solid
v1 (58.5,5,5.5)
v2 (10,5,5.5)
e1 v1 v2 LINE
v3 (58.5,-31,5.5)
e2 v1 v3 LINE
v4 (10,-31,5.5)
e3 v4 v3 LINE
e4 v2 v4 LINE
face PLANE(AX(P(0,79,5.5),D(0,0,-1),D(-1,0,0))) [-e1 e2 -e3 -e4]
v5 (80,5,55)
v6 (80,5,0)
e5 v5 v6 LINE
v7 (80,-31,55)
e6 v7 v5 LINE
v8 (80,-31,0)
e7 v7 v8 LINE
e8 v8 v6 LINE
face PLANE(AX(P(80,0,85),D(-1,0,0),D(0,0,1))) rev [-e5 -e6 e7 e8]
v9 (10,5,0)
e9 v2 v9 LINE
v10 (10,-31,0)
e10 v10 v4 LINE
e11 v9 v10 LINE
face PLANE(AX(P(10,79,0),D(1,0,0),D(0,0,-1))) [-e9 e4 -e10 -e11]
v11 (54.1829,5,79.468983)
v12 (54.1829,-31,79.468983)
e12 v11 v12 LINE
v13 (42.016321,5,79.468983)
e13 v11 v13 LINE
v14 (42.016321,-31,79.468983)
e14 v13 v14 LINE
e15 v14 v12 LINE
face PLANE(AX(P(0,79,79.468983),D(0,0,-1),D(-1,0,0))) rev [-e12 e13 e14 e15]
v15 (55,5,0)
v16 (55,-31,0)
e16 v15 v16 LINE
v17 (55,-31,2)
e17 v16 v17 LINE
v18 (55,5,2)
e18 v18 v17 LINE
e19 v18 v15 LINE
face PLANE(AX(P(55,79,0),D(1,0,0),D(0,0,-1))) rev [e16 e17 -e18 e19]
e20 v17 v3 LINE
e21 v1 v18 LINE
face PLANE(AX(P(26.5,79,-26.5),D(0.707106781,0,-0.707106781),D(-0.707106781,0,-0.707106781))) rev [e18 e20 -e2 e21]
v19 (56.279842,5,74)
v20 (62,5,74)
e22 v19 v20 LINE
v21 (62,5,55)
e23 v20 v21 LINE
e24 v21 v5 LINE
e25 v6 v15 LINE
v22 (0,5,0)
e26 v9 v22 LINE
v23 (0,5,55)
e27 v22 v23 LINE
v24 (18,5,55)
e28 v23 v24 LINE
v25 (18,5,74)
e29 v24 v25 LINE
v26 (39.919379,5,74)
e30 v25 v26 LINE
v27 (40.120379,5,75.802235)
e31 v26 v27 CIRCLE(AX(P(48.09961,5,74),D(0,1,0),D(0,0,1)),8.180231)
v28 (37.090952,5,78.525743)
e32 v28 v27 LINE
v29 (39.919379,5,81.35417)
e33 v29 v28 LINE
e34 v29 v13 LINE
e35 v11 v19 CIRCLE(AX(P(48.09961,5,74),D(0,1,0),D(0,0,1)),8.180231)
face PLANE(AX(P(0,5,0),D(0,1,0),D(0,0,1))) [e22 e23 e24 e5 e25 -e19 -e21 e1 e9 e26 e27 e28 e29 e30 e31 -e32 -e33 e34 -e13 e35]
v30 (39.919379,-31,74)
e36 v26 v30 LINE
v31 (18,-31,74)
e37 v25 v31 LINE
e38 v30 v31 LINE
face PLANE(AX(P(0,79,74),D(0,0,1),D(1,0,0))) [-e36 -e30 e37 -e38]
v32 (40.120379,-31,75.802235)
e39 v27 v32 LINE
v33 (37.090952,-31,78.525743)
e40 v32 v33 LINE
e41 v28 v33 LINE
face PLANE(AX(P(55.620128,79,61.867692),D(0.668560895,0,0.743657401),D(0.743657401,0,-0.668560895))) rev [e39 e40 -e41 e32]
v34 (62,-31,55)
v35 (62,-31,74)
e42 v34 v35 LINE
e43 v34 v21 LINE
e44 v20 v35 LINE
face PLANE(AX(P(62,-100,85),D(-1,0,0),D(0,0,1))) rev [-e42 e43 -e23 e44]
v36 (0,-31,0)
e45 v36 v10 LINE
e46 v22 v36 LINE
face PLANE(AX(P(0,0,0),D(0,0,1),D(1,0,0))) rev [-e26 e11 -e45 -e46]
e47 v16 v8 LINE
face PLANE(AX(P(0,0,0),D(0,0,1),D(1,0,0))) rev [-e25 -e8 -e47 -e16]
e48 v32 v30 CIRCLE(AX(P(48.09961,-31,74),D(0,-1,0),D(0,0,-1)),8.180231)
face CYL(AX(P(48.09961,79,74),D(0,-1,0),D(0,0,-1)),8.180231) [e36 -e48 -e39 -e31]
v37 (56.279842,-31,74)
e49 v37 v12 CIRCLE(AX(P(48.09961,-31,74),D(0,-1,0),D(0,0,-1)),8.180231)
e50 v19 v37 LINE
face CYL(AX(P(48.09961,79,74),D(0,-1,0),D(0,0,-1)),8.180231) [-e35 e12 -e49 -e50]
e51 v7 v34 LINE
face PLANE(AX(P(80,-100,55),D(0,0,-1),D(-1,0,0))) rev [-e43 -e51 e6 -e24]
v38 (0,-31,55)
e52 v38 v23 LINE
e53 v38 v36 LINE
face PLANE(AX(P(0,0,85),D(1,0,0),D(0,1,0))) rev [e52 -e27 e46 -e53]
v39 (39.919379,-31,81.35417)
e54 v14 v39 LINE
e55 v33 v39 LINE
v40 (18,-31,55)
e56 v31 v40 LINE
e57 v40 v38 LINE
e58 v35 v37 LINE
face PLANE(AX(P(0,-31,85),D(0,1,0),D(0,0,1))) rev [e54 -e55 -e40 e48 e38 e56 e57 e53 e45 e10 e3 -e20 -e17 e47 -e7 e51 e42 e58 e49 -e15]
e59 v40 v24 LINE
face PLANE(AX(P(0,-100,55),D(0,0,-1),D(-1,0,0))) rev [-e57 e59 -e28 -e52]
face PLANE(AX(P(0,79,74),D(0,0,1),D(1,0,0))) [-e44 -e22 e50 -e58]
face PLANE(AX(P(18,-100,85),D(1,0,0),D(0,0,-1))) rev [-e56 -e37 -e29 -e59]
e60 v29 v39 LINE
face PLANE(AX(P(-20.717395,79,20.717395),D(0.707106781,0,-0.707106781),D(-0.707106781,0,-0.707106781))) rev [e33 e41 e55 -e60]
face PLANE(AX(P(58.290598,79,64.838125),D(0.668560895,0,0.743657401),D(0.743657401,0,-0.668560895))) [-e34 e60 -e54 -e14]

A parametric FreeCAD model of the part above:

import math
import FreeCAD as App
import Part
import Sketcher
Q = App.Units.Quantity

doc = App.newDocument("Part")
body = doc.addObject("PartDesign::Body", "Body")

# Sketch on XY plane
sketch1 = body.newObject("Sketcher::SketchObject", "Sketch")
sketch1.AttachmentSupport = (doc.getObject("XY_Plane"), [""])
sketch1.MapMode = "FlatFace"
sketch1.addGeometry([
    Part.LineSegment(App.Vector(0, 0, 0), App.Vector(0, -31, 0)),
    Part.LineSegment(App.Vector(0, -31, 0), App.Vector(80, -31, 0)),
    Part.LineSegment(App.Vector(80, -31, 0), App.Vector(80, 0, 0)),
    Part.LineSegment(App.Vector(80, 0, 0), App.Vector(0, 0, 0)),
], False)
sketch1.addConstraint([
    Sketcher.Constraint("Coincident", 0, 2, 1, 1),
    Sketcher.Constraint("Coincident", 1, 2, 2, 1),
    Sketcher.Constraint("Coincident", 2, 2, 3, 1),
    Sketcher.Constraint("Coincident", 3, 2, 0, 1),
    Sketcher.Constraint("Vertical", 0),
    Sketcher.Constraint("Horizontal", 1),
    Sketcher.Constraint("Vertical", 2),
    Sketcher.Constraint("Horizontal", 3),
    Sketcher.Constraint("Coincident", 3, 2, -1, 1),
    Sketcher.Constraint("DistanceX", 1, 1, 1, 2, Q("80 mm")),
    Sketcher.Constraint("DistanceY", 0, 2, 0, 1, Q("31 mm")),
])
pad1 = body.newObject("PartDesign::Pad", "Pad")
pad1.Profile = sketch1
pad1.Length = 85

# Sketch on XZ plane
sketch2 = body.newObject("Sketcher::SketchObject", "Sketch001")
sketch2.AttachmentSupport = (doc.getObject("XZ_Plane"), [""])
sketch2.MapMode = "FlatFace"
sketch2.addGeometry([
    Part.LineSegment(App.Vector(62, 55, 0), App.Vector(62, 85, 0)),  # 0
    Part.LineSegment(App.Vector(62, 85, 0), App.Vector(80, 85, 0)),  # 1
    Part.LineSegment(App.Vector(80, 85, 0), App.Vector(80, 55, 0)),  # 2
    Part.LineSegment(App.Vector(80, 55, 0), App.Vector(62, 55, 0)),  # 3
    Part.LineSegment(App.Vector(0, 55, 0), App.Vector(0, 85, 0)),  # 4
    Part.LineSegment(App.Vector(0, 85, 0), App.Vector(18, 85, 0)),  # 5
    Part.LineSegment(App.Vector(18, 85, 0), App.Vector(18, 55, 0)),  # 6
    Part.LineSegment(App.Vector(18, 55, 0), App.Vector(0, 55, 0)),  # 7
], False)
sketch2.addConstraint([
    Sketcher.Constraint("Coincident", 0, 2, 1, 1),
    Sketcher.Constraint("Coincident", 1, 2, 2, 1),
    Sketcher.Constraint("Coincident", 2, 2, 3, 1),
    Sketcher.Constraint("Coincident", 3, 2, 0, 1),
    Sketcher.Constraint("Coincident", 4, 2, 5, 1),
    Sketcher.Constraint("Coincident", 5, 2, 6, 1),
    Sketcher.Constraint("Coincident", 6, 2, 7, 1),
    Sketcher.Constraint("Coincident", 7, 2, 4, 1),
    Sketcher.Constraint("Vertical", 0),
    Sketcher.Constraint("Horizontal", 1),
    Sketcher.Constraint("Vertical", 2),
    Sketcher.Constraint("Horizontal", 3),
    Sketcher.Constraint("Vertical", 4),
    Sketcher.Constraint("Horizontal", 5),
    Sketcher.Constraint("Vertical", 6),
    Sketcher.Constraint("Horizontal", 7),
    Sketcher.Constraint("PointOnObject", 4, 2, -2),
    Sketcher.Constraint("Horizontal", 1, 2, 4, 2),
    Sketcher.Constraint("Horizontal", 3, 2, 6, 2),
    Sketcher.Constraint("Equal", 3, 5),
    Sketcher.Constraint("DistanceX", 1, 1, 1, 2, Q("18 mm")),
    Sketcher.Constraint("DistanceY", 0, 1, 0, 2, Q("30 mm")),
    Sketcher.Constraint("DistanceX", -1, 1, 0, 2, Q("62 mm")),
    Sketcher.Constraint("DistanceY", -1, 1, 0, 2, Q("85 mm")),
])
pocket1 = body.newObject("PartDesign::Pocket", "Pocket")
pocket1.Profile = sketch2
pocket1.Length = 100
pocket1.Reversed = True

# Sketch on XZ plane
sketch3 = body.newObject("Sketcher::SketchObject", "Sketch002")
sketch3.AttachmentSupport = (doc.getObject("XZ_Plane"), [""])
sketch3.MapMode = "FlatFace"
sketch3.addGeometry([
    Part.LineSegment(App.Vector(80, 55, 0), App.Vector(80, 0, 0)),  # 0
    Part.LineSegment(App.Vector(80, 0, 0), App.Vector(0, 0, 0)),  # 1
    Part.LineSegment(App.Vector(0, 0, 0), App.Vector(0, 55, 0)),  # 2
    Part.LineSegment(App.Vector(0, 55, 0), App.Vector(18, 55, 0)),  # 3
    Part.LineSegment(App.Vector(18, 55, 0), App.Vector(18, 85, 0)),  # 4
    Part.LineSegment(App.Vector(18, 85, 0), App.Vector(62, 85, 0)),  # 5
    Part.LineSegment(App.Vector(62, 85, 0), App.Vector(62, 55, 0)),  # 6
    Part.LineSegment(App.Vector(62, 55, 0), App.Vector(80, 55, 0)),  # 7
], False)
sketch3.addConstraint([
    Sketcher.Constraint("Coincident", 0, 2, 1, 1),
    Sketcher.Constraint("Coincident", 1, 2, 2, 1),
    Sketcher.Constraint("Coincident", 2, 2, 3, 1),
    Sketcher.Constraint("Coincident", 3, 2, 4, 1),
    Sketcher.Constraint("Coincident", 4, 2, 5, 1),
    Sketcher.Constraint("Coincident", 5, 2, 6, 1),
    Sketcher.Constraint("Coincident", 6, 2, 7, 1),
    Sketcher.Constraint("Coincident", 7, 2, 0, 1),
    Sketcher.Constraint("Vertical", 0),
    Sketcher.Constraint("Horizontal", 1),
    Sketcher.Constraint("Vertical", 2),
    Sketcher.Constraint("Horizontal", 3),
    Sketcher.Constraint("Vertical", 4),
    Sketcher.Constraint("Horizontal", 5),
    Sketcher.Constraint("Vertical", 6),
    Sketcher.Constraint("Horizontal", 7),
    Sketcher.Constraint("Coincident", 1, 2, -1, 1),
    Sketcher.Constraint("Horizontal", 3, 2, 6, 2),
    Sketcher.Constraint("Equal", 3, 7),
    Sketcher.Constraint("DistanceX", 1, 2, 1, 1, Q("80 mm")),
    Sketcher.Constraint("DistanceX", 3, 1, 3, 2, Q("18 mm")),
    Sketcher.Constraint("DistanceY", 0, 2, 0, 1, Q("55 mm")),
    Sketcher.Constraint("DistanceY", 4, 1, 4, 2, Q("30 mm")),
])
pad2 = body.newObject("PartDesign::Pad", "Pad001")
pad2.Profile = sketch3
pad2.Length = 5
pad2.Reversed = True

# Sketch on XZ plane
sketch4 = body.newObject("Sketcher::SketchObject", "Sketch003")
sketch4.AttachmentSupport = (doc.getObject("XZ_Plane"), [""])
sketch4.MapMode = "FlatFace"
sketch4.AttachmentOffset = App.Placement(App.Vector(0, 0, 31), App.Rotation())
sketch4.addGeometry([
    Part.LineSegment(App.Vector(10, 0, 0), App.Vector(55, 0, 0)),  # 0
    Part.LineSegment(App.Vector(55, 0, 0), App.Vector(55, 2, 0)),  # 1
    Part.LineSegment(App.Vector(55, 2, 0), App.Vector(58.5, 5.5, 0)),  # 2
    Part.LineSegment(App.Vector(58.5, 5.5, 0), App.Vector(10, 5.5, 0)),  # 3
    Part.LineSegment(App.Vector(10, 5.5, 0), App.Vector(10, 0, 0)),  # 4
    Part.LineSegment(App.Vector(39.919379, 81.35417, 0), App.Vector(42.016321, 79.468983, 0)),  # 5
    Part.LineSegment(App.Vector(42.016321, 79.468983, 0), App.Vector(54.1829, 79.468983, 0)),  # 6
    Part.ArcOfCircle(Part.Circle(App.Vector(48.09961, 74, 0), App.Vector(0, 0, 1), 8.180231), math.radians(0), math.radians(41.956091)),  # 7
    Part.LineSegment(App.Vector(56.279842, 74, 0), App.Vector(62, 74, 0)),  # 8
    Part.LineSegment(App.Vector(62, 74, 0), App.Vector(62, 85, 0)),  # 9
    Part.LineSegment(App.Vector(62, 85, 0), App.Vector(18, 85, 0)),  # 10
    Part.LineSegment(App.Vector(18, 85, 0), App.Vector(18, 74, 0)),  # 11
    Part.LineSegment(App.Vector(18, 74, 0), App.Vector(39.919379, 74, 0)),  # 12
    Part.ArcOfCircle(Part.Circle(App.Vector(48.09961, 74, 0), App.Vector(0, 0, 1), 8.180231), math.radians(167.272411), math.radians(180)),  # 13
    Part.LineSegment(App.Vector(40.120379, 75.802235, 0), App.Vector(37.090952, 78.525743, 0)),  # 14
    Part.LineSegment(App.Vector(37.090952, 78.525743, 0), App.Vector(39.919379, 81.35417, 0)),  # 15
], False)
sketch4.addConstraint([
    Sketcher.Constraint("Coincident", 0, 2, 1, 1),
    Sketcher.Constraint("Coincident", 1, 2, 2, 1),
    Sketcher.Constraint("Coincident", 2, 2, 3, 1),
    Sketcher.Constraint("Coincident", 3, 2, 4, 1),
    Sketcher.Constraint("Coincident", 4, 2, 0, 1),
    Sketcher.Constraint("Coincident", 5, 2, 6, 1),
    Sketcher.Constraint("Coincident", 6, 2, 7, 2),
    Sketcher.Constraint("Coincident", 7, 1, 8, 1),
    Sketcher.Constraint("Coincident", 8, 2, 9, 1),
    Sketcher.Constraint("Coincident", 9, 2, 10, 1),
    Sketcher.Constraint("Coincident", 10, 2, 11, 1),
    Sketcher.Constraint("Coincident", 11, 2, 12, 1),
    Sketcher.Constraint("Coincident", 12, 2, 13, 2),
    Sketcher.Constraint("Coincident", 13, 1, 14, 1),
    Sketcher.Constraint("Coincident", 14, 2, 15, 1),
    Sketcher.Constraint("Coincident", 15, 2, 5, 1),
    Sketcher.Constraint("Horizontal", 0),
    Sketcher.Constraint("Vertical", 1),
    Sketcher.Constraint("Horizontal", 3),
    Sketcher.Constraint("Vertical", 4),
    Sketcher.Constraint("Horizontal", 6),
    Sketcher.Constraint("Horizontal", 8),
    Sketcher.Constraint("Vertical", 9),
    Sketcher.Constraint("Horizontal", 10),
    Sketcher.Constraint("Vertical", 11),
    Sketcher.Constraint("Horizontal", 12),
    Sketcher.Constraint("Coincident", 13, 3, 7, 3),
    Sketcher.Constraint("Equal", 7, 13),
    Sketcher.Constraint("PointOnObject", 0, 2, -1),
    Sketcher.Constraint("Parallel", 5, 14),
    Sketcher.Constraint("Parallel", 2, 15),
    Sketcher.Constraint("Horizontal", 13, 3, 7, 1),
    Sketcher.Constraint("Horizontal", 8, 2, 11, 2),
    Sketcher.Constraint("Vertical", 12, 2, 15, 2),
    Sketcher.Constraint("DistanceX", 0, 1, 0, 2, Q("45 mm")),
    Sketcher.Constraint("DistanceX", 10, 2, 10, 1, Q("44 mm")),
    Sketcher.Constraint("DistanceY", 1, 1, 1, 2, Q("2 mm")),
    Sketcher.Constraint("DistanceY", 9, 1, 9, 2, Q("11 mm")),
    Sketcher.Constraint("Angle", 2, Q("45 deg")),
    Sketcher.Constraint("Distance", 15, Q("4 mm")),
    Sketcher.Constraint("DistanceX", 3, 2, 3, 1, Q("48.5 mm")),
    Sketcher.Constraint("DistanceY", -1, 1, 7, 3, Q("74 mm")),
    Sketcher.Constraint("DistanceX", -1, 1, 0, 2, Q("55 mm")),
    Sketcher.Constraint("DistanceX", -1, 1, 8, 2, Q("62 mm")),
    Sketcher.Constraint("Radius", 7, Q("8.180231 mm")),
    Sketcher.Constraint("DistanceX", 12, 2, 13, 1, Q("0.201 mm")),
    Sketcher.Constraint("DistanceX", 6, 1, 6, 2, Q("12.166579 mm")),
    Sketcher.Constraint("DistanceX", 8, 1, 8, 2, Q("5.720158 mm")),
    Sketcher.Constraint("DistanceX", -1, 1, 6, 2, Q("54.1829 mm")),
])
pocket2 = body.newObject("PartDesign::Pocket", "Pocket001")
pocket2.Profile = sketch4
pocket2.Length = 110

doc.recompute()
